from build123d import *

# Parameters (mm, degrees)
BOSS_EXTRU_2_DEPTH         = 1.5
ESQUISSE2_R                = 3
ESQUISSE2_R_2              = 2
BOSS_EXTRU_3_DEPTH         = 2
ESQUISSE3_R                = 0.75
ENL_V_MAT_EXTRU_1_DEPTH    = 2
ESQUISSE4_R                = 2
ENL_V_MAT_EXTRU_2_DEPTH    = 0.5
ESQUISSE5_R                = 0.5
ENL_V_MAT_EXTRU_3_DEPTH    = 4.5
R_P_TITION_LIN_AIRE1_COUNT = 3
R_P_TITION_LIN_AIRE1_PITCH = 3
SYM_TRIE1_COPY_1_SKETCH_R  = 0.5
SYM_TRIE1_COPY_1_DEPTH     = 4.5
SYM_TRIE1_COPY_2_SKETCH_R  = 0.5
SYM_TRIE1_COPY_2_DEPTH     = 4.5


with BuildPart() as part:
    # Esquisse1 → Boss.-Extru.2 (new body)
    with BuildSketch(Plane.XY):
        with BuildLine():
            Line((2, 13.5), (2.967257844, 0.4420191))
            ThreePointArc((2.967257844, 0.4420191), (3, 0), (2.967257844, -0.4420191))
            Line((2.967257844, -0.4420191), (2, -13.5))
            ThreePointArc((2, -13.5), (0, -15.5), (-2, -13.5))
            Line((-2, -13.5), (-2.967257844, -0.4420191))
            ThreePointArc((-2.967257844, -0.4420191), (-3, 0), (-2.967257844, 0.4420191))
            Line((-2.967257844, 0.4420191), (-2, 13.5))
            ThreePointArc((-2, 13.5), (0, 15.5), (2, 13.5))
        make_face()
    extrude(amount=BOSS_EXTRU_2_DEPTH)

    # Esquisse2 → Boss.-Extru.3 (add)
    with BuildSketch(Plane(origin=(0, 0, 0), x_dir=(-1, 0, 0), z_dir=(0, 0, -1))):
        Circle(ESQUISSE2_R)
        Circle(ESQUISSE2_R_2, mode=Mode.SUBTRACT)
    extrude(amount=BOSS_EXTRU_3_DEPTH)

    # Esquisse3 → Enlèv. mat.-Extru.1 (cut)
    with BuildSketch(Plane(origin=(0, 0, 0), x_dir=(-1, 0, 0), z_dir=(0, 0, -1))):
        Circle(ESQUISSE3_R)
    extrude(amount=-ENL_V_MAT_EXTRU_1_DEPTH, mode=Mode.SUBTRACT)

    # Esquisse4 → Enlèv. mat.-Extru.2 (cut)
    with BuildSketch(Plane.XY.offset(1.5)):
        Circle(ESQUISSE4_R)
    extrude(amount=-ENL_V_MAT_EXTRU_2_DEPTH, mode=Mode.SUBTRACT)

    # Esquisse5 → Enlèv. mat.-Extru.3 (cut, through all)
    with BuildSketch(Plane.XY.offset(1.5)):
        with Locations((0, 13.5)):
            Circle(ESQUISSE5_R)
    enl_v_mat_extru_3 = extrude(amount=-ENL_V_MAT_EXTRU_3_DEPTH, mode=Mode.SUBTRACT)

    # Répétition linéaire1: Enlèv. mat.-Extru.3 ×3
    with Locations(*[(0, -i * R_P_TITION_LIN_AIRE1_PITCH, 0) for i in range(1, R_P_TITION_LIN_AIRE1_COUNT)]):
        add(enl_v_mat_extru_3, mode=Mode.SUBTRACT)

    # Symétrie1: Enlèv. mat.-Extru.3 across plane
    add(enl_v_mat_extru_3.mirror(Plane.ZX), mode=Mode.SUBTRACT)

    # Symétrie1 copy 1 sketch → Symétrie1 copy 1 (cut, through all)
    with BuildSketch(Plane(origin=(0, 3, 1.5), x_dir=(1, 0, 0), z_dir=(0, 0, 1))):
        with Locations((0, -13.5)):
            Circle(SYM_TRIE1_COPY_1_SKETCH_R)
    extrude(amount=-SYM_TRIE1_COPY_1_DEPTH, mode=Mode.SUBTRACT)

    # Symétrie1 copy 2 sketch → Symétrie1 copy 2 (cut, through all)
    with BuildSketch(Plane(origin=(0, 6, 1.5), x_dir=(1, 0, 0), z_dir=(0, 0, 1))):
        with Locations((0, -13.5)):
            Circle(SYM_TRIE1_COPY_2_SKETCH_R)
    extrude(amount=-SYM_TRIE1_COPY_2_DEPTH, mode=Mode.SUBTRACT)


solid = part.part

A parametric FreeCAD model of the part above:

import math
import FreeCAD as App
import Part
import Sketcher
from FreeCAD import Vector

doc = App.newDocument("Part")
params = doc.addObject("Spreadsheet::Sheet", "Params")
for row, (alias, value) in enumerate([
    ("sketch1_radius", "2 mm"),
    ("sketch1_radius2", "3 mm"),
    ("pad1_length", "1.5 mm"),
    ("sketch2_diameter", "6 mm"),
    ("sketch2_diameter2", "4 mm"),
    ("pad2_length", "2 mm"),
    ("sketch3_diameter", "1.5 mm"),
    ("pocket1_length", "2 mm"),
    ("sketch4_diameter", "4 mm"),
    ("pocket2_length", "0.5 mm"),
    ("sketch5_diameter", "1 mm"),
    ("linearpattern_pitch", "3 mm"),
    ("sketch6_diameter", "1 mm"),
    ("sketch7_diameter", "1 mm"),
], start=1):
    params.set(f"A{row}", alias)
    params.set(f"B{row}", "=" + value)
    params.setAlias(f"B{row}", alias)

body = doc.addObject("PartDesign::Body", "Body")

# Sketch on XY plane
sketch1 = doc.addObject("Sketcher::SketchObject", "Sketch")
body.addObject(sketch1)
sketch1.AttachmentSupport = (doc.XY_Plane, [""])
sketch1.MapMode = "FlatFace"
sketch1.addGeometry(Part.LineSegment(Vector(2.967258, 0.442019, 0), Vector(2, 13.5, 0)), False)
sketch1.addGeometry(Part.ArcOfCircle(Part.Circle(Vector(0, 13.5, 0), Vector(0, 0, 1), 2), math.radians(0), math.radians(180)), False)
sketch1.addGeometry(Part.LineSegment(Vector(-2, 13.5, 0), Vector(-2.967258, 0.442019, 0)), False)
sketch1.addGeometry(Part.ArcOfCircle(Part.Circle(Vector(0, 0, 0), Vector(0, 0, 1), 3), math.radians(171.52721), math.radians(188.47279)), False)
sketch1.addGeometry(Part.LineSegment(Vector(-2.967258, -0.442019, 0), Vector(-2, -13.5, 0)), False)
sketch1.addGeometry(Part.ArcOfCircle(Part.Circle(Vector(0, -13.5, 0), Vector(0, 0, 1), 2), math.radians(180), math.radians(360)), False)
sketch1.addGeometry(Part.LineSegment(Vector(2, -13.5, 0), Vector(2.967258, -0.442019, 0)), False)
sketch1.addGeometry(Part.ArcOfCircle(Part.Circle(Vector(0, 0, 0), Vector(0, 0, 1), 3), math.radians(-8.47279), math.radians(8.47279)), False)
sketch1.addConstraint(Sketcher.Constraint("Coincident", 0, 2, 1, 1))
sketch1.addConstraint(Sketcher.Constraint("Coincident", 1, 2, 2, 1))
sketch1.addConstraint(Sketcher.Constraint("Coincident", 2, 2, 3, 1))
sketch1.addConstraint(Sketcher.Constraint("Coincident", 3, 2, 4, 1))
sketch1.addConstraint(Sketcher.Constraint("Coincident", 4, 2, 5, 1))
sketch1.addConstraint(Sketcher.Constraint("Coincident", 5, 2, 6, 1))
sketch1.addConstraint(Sketcher.Constraint("Coincident", 6, 2, 7, 1))
sketch1.addConstraint(Sketcher.Constraint("Coincident", 7, 2, 0, 1))
sketch1.addConstraint(Sketcher.Constraint("Coincident", 3, 3, -1, 1))
sketch1.addConstraint(Sketcher.Constraint("Coincident", 7, 3, -1, 1))
sketch1.addConstraint(Sketcher.Constraint("Equal", 1, 5))
sketch1.addConstraint(Sketcher.Constraint("Equal", 3, 7))
sketch1.addConstraint(Sketcher.Constraint("Symmetric", 1, 3, 5, 3, -1, 1))
sketch1.addConstraint(Sketcher.Constraint("Symmetric", 0, 2, 1, 2, -2))
sketch1.addConstraint(Sketcher.Constraint("Parallel", 0, 4))
sketch1.addConstraint(Sketcher.Constraint("Parallel", 2, 6))
sketch1.addConstraint(Sketcher.Constraint("Horizontal", 1, 3, 0, 2))
sketch1.addConstraint(Sketcher.Constraint("Horizontal", 5, 3, 4, 2))
sketch1.addConstraint(Sketcher.Constraint("Horizontal", 4, 2, 5, 2))
sketch1.addConstraint(Sketcher.Constraint("Horizontal", 3, 2, 6, 2))
sketch1.addConstraint(Sketcher.Constraint("Radius", 1, 2.0))
sketch1.addConstraint(Sketcher.Constraint("Radius", 3, 3.0))
sketch1.addConstraint(Sketcher.Constraint("DistanceY", 5, 3, 1, 3, 27.0))
sketch1.addConstraint(Sketcher.Constraint("DistanceY", -1, 1, 2, 2, 0.442019))
sketch1.setExpression("Constraints[20]", "Params.sketch1_radius")
sketch1.setExpression("Constraints[21]", "Params.sketch1_radius2")
pad1 = doc.addObject("PartDesign::Pad", "Pad")
body.addObject(pad1)
pad1.Profile = sketch1
pad1.setExpression("Length", "Params.pad1_length")

# Sketch on XY plane
sketch2 = doc.addObject("Sketcher::SketchObject", "Sketch001")
body.addObject(sketch2)
sketch2.AttachmentSupport = (doc.XY_Plane, [""])
sketch2.MapMode = "FlatFace"
sketch2.addGeometry(Part.Circle(Vector(0, 0, 0), Vector(0, 0, 1), 3), False)
sketch2.addGeometry(Part.Circle(Vector(0, 0, 0), Vector(0, 0, 1), 2), False)
sketch2.addConstraint(Sketcher.Constraint("Coincident", 0, 3, -1, 1))
sketch2.addConstraint(Sketcher.Constraint("Coincident", 1, 3, -1, 1))
sketch2.addConstraint(Sketcher.Constraint("Diameter", 0, 6.0))
sketch2.addConstraint(Sketcher.Constraint("Diameter", 1, 4.0))
sketch2.setExpression("Constraints[2]", "Params.sketch2_diameter")
sketch2.setExpression("Constraints[3]", "Params.sketch2_diameter2")
pad2 = doc.addObject("PartDesign::Pad", "Pad001")
body.addObject(pad2)
pad2.Profile = sketch2
pad2.setExpression("Length", "Params.pad2_length")
pad2.Reversed = True

# Sketch on XY plane
sketch3 = doc.addObject("Sketcher::SketchObject", "Sketch002")
body.addObject(sketch3)
sketch3.AttachmentSupport = (doc.XY_Plane, [""])
sketch3.MapMode = "FlatFace"
sketch3.addGeometry(Part.Circle(Vector(0, 0, 0), Vector(0, 0, 1), 0.75), False)
sketch3.addConstraint(Sketcher.Constraint("Coincident", 0, 3, -1, 1))
sketch3.addConstraint(Sketcher.Constraint("Diameter", 0, 1.5))
sketch3.setExpression("Constraints[1]", "Params.sketch3_diameter")
pocket1 = doc.addObject("PartDesign::Pocket", "Pocket")
body.addObject(pocket1)
pocket1.Profile = sketch3
pocket1.setExpression("Length", "Params.pocket1_length")
pocket1.Reversed = True

# Sketch on XY plane
sketch4 = doc.addObject("Sketcher::SketchObject", "Sketch003")
body.addObject(sketch4)
sketch4.AttachmentSupport = (doc.XY_Plane, [""])
sketch4.MapMode = "FlatFace"
sketch4.AttachmentOffset = App.Placement(Vector(0, 0, 1.5), App.Rotation())
sketch4.addGeometry(Part.Circle(Vector(0, 0, 0), Vector(0, 0, 1), 2), False)
sketch4.addConstraint(Sketcher.Constraint("Coincident", 0, 3, -1, 1))
sketch4.addConstraint(Sketcher.Constraint("Diameter", 0, 4.0))
sketch4.setExpression("Constraints[1]", "Params.sketch4_diameter")
pocket2 = doc.addObject("PartDesign::Pocket", "Pocket001")
body.addObject(pocket2)
pocket2.Profile = sketch4
pocket2.setExpression("Length", "Params.pocket2_length")

# Sketch on XY plane
sketch5 = doc.addObject("Sketcher::SketchObject", "Sketch004")
body.addObject(sketch5)
sketch5.AttachmentSupport = (doc.XY_Plane, [""])
sketch5.MapMode = "FlatFace"
sketch5.AttachmentOffset = App.Placement(Vector(0, 0, 1.5), App.Rotation())
sketch5.addGeometry(Part.Circle(Vector(0, 13.5, 0), Vector(0, 0, 1), 0.5), False)
sketch5.addConstraint(Sketcher.Constraint("PointOnObject", 0, 3, -2))
sketch5.addConstraint(Sketcher.Constraint("Diameter", 0, 1.0))
sketch5.addConstraint(Sketcher.Constraint("DistanceY", -1, 1, 0, 3, 13.5))
sketch5.setExpression("Constraints[1]", "Params.sketch5_diameter")
pocket3 = doc.addObject("PartDesign::Pocket", "Pocket002")
body.addObject(pocket3)
pocket3.Profile = sketch5
pocket3.Type = "ThroughAll"
doc.recompute()

linearpattern = doc.addObject("PartDesign::LinearPattern", "LinearPattern")
body.addObject(linearpattern)
linearpattern.Originals = [pocket3]
linearpattern.Direction = (doc.Y_Axis, [""])
linearpattern.Mode = "offset"
linearpattern.setExpression("Offset", "Params.linearpattern_pitch")
linearpattern.Occurrences = 3
linearpattern.Reversed = True
body.Tip = linearpattern
doc.recompute()

mirrored = doc.addObject("PartDesign::Mirrored", "Mirrored")
body.addObject(mirrored)
mirrored.Originals = [pocket3]
mirrored.MirrorPlane = (doc.XZ_Plane, [""])
body.Tip = mirrored

# Sketch on XY plane
sketch6 = doc.addObject("Sketcher::SketchObject", "Sketch005")
body.addObject(sketch6)
sketch6.AttachmentSupport = (doc.XY_Plane, [""])
sketch6.MapMode = "FlatFace"
sketch6.AttachmentOffset = App.Placement(Vector(0, 0, 1.5), App.Rotation())
sketch6.addGeometry(Part.Circle(Vector(0, -10.5, 0), Vector(0, 0, 1), 0.5), False)
sketch6.addConstraint(Sketcher.Constraint("PointOnObject", 0, 3, -2))
sketch6.addConstraint(Sketcher.Constraint("Diameter", 0, 1.0))
sketch6.addConstraint(Sketcher.Constraint("DistanceY", 0, 3, -1, 1, 10.5))
sketch6.setExpression("Constraints[1]", "Params.sketch6_diameter")
pocket4 = doc.addObject("PartDesign::Pocket", "Pocket003")
body.addObject(pocket4)
pocket4.Profile = sketch6
pocket4.Type = "ThroughAll"

# Sketch on XY plane
sketch7 = doc.addObject("Sketcher::SketchObject", "Sketch006")
body.addObject(sketch7)
sketch7.AttachmentSupport = (doc.XY_Plane, [""])
sketch7.MapMode = "FlatFace"
sketch7.AttachmentOffset = App.Placement(Vector(0, 0, 1.5), App.Rotation())
sketch7.addGeometry(Part.Circle(Vector(0, -7.5, 0), Vector(0, 0, 1), 0.5), False)
sketch7.addConstraint(Sketcher.Constraint("PointOnObject", 0, 3, -2))
sketch7.addConstraint(Sketcher.Constraint("Diameter", 0, 1.0))
sketch7.addConstraint(Sketcher.Constraint("DistanceY", 0, 3, -1, 1, 7.5))
sketch7.setExpression("Constraints[1]", "Params.sketch7_diameter")
pocket5 = doc.addObject("PartDesign::Pocket", "Pocket004")
body.addObject(pocket5)
pocket5.Profile = sketch7
pocket5.Type = "ThroughAll"

doc.recompute()
